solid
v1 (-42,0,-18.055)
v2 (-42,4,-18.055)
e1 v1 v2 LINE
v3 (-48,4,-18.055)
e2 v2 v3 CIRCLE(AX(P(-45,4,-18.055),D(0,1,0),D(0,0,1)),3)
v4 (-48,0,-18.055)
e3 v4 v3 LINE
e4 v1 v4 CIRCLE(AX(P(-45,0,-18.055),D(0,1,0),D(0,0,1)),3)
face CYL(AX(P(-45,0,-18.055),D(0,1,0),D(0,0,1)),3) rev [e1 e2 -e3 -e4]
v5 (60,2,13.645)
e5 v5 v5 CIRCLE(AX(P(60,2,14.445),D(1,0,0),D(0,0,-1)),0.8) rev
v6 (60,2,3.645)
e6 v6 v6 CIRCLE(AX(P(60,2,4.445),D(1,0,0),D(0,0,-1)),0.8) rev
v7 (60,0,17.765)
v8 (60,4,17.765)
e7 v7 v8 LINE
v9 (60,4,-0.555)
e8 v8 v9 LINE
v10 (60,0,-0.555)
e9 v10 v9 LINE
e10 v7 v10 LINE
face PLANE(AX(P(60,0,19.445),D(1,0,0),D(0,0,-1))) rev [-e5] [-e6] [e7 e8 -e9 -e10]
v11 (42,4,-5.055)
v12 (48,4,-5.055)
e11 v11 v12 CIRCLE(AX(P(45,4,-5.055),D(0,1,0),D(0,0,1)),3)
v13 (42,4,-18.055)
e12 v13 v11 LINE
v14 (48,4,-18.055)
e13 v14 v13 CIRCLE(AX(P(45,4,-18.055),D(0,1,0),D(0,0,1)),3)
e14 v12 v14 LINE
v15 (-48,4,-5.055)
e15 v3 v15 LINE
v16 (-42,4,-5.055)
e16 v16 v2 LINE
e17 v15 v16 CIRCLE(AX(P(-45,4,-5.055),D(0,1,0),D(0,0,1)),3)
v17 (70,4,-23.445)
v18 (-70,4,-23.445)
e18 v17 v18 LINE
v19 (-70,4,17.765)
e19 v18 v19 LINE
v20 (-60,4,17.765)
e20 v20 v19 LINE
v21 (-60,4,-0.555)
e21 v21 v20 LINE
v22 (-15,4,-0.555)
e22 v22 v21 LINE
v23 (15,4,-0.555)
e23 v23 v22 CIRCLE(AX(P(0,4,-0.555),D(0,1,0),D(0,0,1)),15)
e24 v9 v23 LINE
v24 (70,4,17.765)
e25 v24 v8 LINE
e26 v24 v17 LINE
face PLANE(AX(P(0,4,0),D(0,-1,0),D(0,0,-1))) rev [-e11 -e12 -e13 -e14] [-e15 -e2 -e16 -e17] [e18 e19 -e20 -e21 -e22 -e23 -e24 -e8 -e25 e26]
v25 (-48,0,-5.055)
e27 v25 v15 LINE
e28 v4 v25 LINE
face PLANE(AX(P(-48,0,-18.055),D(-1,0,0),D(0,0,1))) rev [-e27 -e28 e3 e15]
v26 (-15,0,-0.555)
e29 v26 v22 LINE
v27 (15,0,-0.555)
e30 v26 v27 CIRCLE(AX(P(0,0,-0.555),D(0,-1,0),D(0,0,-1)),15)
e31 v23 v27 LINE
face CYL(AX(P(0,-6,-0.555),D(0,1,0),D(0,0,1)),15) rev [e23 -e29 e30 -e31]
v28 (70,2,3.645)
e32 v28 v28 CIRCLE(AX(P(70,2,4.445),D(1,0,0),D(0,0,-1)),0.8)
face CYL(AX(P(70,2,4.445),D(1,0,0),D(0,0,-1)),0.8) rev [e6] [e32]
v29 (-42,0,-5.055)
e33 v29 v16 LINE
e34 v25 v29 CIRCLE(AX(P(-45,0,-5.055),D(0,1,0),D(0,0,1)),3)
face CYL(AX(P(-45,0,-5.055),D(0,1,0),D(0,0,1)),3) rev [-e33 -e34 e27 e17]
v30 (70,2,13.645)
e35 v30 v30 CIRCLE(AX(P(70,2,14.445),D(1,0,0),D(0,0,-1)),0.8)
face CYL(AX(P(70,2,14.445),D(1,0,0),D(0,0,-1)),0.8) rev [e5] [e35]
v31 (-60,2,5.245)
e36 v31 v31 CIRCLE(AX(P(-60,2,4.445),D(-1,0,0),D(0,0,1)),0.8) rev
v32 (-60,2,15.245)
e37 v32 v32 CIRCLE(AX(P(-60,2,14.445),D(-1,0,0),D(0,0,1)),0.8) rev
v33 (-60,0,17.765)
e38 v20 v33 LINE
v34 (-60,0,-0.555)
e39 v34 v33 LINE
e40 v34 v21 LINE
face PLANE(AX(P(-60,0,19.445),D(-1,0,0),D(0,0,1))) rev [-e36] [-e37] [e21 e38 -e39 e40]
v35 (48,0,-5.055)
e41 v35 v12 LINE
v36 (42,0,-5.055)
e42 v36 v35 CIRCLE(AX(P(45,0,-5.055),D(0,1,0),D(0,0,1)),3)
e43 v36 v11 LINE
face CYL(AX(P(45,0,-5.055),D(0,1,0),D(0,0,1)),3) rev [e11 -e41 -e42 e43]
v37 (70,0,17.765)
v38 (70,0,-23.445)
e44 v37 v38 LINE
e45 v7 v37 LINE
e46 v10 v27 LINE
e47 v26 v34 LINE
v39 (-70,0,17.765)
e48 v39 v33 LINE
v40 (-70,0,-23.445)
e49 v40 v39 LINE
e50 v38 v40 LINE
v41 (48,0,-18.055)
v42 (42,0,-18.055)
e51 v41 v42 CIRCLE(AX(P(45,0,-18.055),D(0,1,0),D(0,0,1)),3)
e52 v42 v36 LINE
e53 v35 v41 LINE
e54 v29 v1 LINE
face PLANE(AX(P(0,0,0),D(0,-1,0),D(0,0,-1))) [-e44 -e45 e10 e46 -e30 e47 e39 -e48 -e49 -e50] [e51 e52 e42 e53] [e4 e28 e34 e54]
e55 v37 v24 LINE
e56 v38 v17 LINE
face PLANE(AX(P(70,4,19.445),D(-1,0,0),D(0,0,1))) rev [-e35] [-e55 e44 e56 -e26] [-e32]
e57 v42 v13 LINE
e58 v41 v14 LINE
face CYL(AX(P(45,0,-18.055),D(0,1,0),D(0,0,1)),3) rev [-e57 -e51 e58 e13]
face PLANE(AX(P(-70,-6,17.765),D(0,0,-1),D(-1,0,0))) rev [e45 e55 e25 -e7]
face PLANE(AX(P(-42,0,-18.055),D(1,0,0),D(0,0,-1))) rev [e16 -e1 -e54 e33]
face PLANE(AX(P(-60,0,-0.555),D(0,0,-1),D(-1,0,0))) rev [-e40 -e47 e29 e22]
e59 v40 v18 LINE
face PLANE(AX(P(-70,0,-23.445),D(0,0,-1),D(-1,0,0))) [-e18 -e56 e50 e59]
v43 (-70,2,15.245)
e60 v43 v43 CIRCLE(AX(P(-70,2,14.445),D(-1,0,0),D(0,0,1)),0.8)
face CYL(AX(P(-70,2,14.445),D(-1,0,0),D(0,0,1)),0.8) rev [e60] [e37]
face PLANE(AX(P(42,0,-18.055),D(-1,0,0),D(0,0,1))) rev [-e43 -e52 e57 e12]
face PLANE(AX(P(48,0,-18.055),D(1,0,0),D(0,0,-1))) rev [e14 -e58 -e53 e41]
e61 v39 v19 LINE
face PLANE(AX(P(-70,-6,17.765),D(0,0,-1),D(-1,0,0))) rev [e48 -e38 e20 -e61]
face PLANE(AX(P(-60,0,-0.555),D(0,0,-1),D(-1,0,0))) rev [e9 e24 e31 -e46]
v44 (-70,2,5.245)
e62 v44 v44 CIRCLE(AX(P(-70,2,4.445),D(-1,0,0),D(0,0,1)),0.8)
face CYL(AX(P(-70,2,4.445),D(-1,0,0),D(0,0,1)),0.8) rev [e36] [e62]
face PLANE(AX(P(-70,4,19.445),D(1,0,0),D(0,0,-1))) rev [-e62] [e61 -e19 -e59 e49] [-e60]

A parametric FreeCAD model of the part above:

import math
import FreeCAD as App
import Part
import Sketcher
from FreeCAD import Vector
Q = App.Units.Quantity

doc = App.newDocument("Part")
body = doc.addObject("PartDesign::Body", "Body")

sketch1 = doc.addObject("Sketcher::SketchObject", "Sketch")
body.addObject(sketch1)
sketch1.AttachmentSupport = (doc.XZ_Plane, [""])
sketch1.MapMode = "FlatFace"
sketch1.addGeometry(Part.LineSegment(Vector(-70, -19.445, 0), Vector(-70, 19.445, 0)), False)
sketch1.addGeometry(Part.LineSegment(Vector(-70, 19.445, 0), Vector(70, 19.445, 0)), False)
sketch1.addGeometry(Part.LineSegment(Vector(70, 19.445, 0), Vector(70, -19.445, 0)), False)
sketch1.addGeometry(Part.LineSegment(Vector(70, -19.445, 0), Vector(-70, -19.445, 0)), False)
sketch1.addConstraint(Sketcher.Constraint("Coincident", 0, 2, 1, 1))
sketch1.addConstraint(Sketcher.Constraint("Coincident", 1, 2, 2, 1))
sketch1.addConstraint(Sketcher.Constraint("Coincident", 2, 2, 3, 1))
sketch1.addConstraint(Sketcher.Constraint("Coincident", 3, 2, 0, 1))
sketch1.addConstraint(Sketcher.Constraint("Vertical", 0))
sketch1.addConstraint(Sketcher.Constraint("Horizontal", 1))
sketch1.addConstraint(Sketcher.Constraint("Vertical", 2))
sketch1.addConstraint(Sketcher.Constraint("Horizontal", 3))
sketch1.addConstraint(Sketcher.Constraint("Symmetric", 0, 2, 2, 2, -1, 1))
sketch1.addConstraint(Sketcher.Constraint("DistanceX", 1, 1, 1, 2, 140.0))
sketch1.addConstraint(Sketcher.Constraint("DistanceY", 0, 1, 0, 2, 38.89))
pad1 = doc.addObject("PartDesign::Pad", "Pad")
body.addObject(pad1)
pad1.Profile = sketch1
pad1.Length = 4
pad1.Reversed = True

sketch2 = doc.addObject("Sketcher::SketchObject", "Sketch001")
body.addObject(sketch2)
sketch2.AttachmentSupport = (doc.XZ_Plane, [""])
sketch2.MapMode = "FlatFace"
sketch2.AttachmentOffset = App.Placement(Vector(0, 0, -2), App.Rotation())
sketch2.addGeometry(Part.LineSegment(Vector(-51.519312, 4.445, 0), Vector(-70, 4.445, 0)), False)
sketch2.addGeometry(Part.LineSegment(Vector(-70, 4.445, 0), Vector(-70, 5.245, 0)), False)
sketch2.addGeometry(Part.LineSegment(Vector(-70, 5.245, 0), Vector(-52, 5.245, 0)), False)
sketch2.addGeometry(Part.LineSegment(Vector(-52, 5.245, 0), Vector(-51.519312, 4.445, 0)), False)
sketch2.addGeometry(Part.LineSegment(Vector(-70, 4.445, 0), Vector(-51.519312, 4.445, 0)), True)
sketch2.addConstraint(Sketcher.Constraint("Coincident", 0, 2, 1, 1))
sketch2.addConstraint(Sketcher.Constraint("Coincident", 1, 2, 2, 1))
sketch2.addConstraint(Sketcher.Constraint("Coincident", 2, 2, 3, 1))
sketch2.addConstraint(Sketcher.Constraint("Coincident", 3, 2, 0, 1))
sketch2.addConstraint(Sketcher.Constraint("Horizontal", 0))
sketch2.addConstraint(Sketcher.Constraint("Vertical", 1))
sketch2.addConstraint(Sketcher.Constraint("Horizontal", 2))
sketch2.addConstraint(Sketcher.Constraint("Horizontal", 4))
sketch2.addConstraint(Sketcher.Constraint("Coincident", 4, 1, 0, 2))
sketch2.addConstraint(Sketcher.Constraint("Equal", 0, 4))
sketch2.addConstraint(Sketcher.Constraint("DistanceX", 2, 1, 2, 2, 18.0))
sketch2.addConstraint(Sketcher.Constraint("Angle", 3, Q("-59 deg")))
sketch2.addConstraint(Sketcher.Constraint("DistanceY", 1, 1, 1, 2, 0.8))
sketch2.addConstraint(Sketcher.Constraint("DistanceX", 0, 2, -1, 1, 70.0))
sketch2.addConstraint(Sketcher.Constraint("DistanceY", -1, 1, 0, 2, 4.445))
groove = doc.addObject("PartDesign::Groove", "Groove")
body.addObject(groove)
groove.Profile = sketch2
groove.ReferenceAxis = (sketch2, ["Axis0"])
groove.Angle = 360
doc.recompute()

linearpattern = doc.addObject("PartDesign::LinearPattern", "LinearPattern")
body.addObject(linearpattern)
linearpattern.Originals = [groove]
linearpattern.Direction = (doc.Z_Axis, [""])
linearpattern.Mode = "offset"
linearpattern.Offset = 10
linearpattern.Occurrences = 2
body.Tip = linearpattern
doc.recompute()

mirrored = doc.addObject("PartDesign::Mirrored", "Mirrored")
body.addObject(mirrored)
mirrored.Originals = [groove]
mirrored.MirrorPlane = (doc.YZ_Plane, [""])
body.Tip = mirrored

sketch3 = doc.addObject("Sketcher::SketchObject", "Sketch002")
body.addObject(sketch3)
sketch3.AttachmentSupport = (doc.XZ_Plane, [""])
sketch3.MapMode = "FlatFace"
sketch3.AttachmentOffset = App.Placement(Vector(0, 0, -2), App.Rotation())
sketch3.addGeometry(Part.LineSegment(Vector(70, 14.445, 0), Vector(51.519312, 14.445, 0)), False)
sketch3.addGeometry(Part.LineSegment(Vector(51.519312, 14.445, 0), Vector(52, 15.245, 0)), False)
sketch3.addGeometry(Part.LineSegment(Vector(52, 15.245, 0), Vector(70, 15.245, 0)), False)
sketch3.addGeometry(Part.LineSegment(Vector(70, 15.245, 0), Vector(70, 14.445, 0)), False)
sketch3.addGeometry(Part.LineSegment(Vector(51.519312, 14.445, 0), Vector(70, 14.445, 0)), True)
sketch3.addConstraint(Sketcher.Constraint("Coincident", 0, 2, 1, 1))
sketch3.addConstraint(Sketcher.Constraint("Coincident", 1, 2, 2, 1))
sketch3.addConstraint(Sketcher.Constraint("Coincident", 2, 2, 3, 1))
sketch3.addConstraint(Sketcher.Constraint("Coincident", 3, 2, 0, 1))
sketch3.addConstraint(Sketcher.Constraint("Horizontal", 0))
sketch3.addConstraint(Sketcher.Constraint("Horizontal", 2))
sketch3.addConstraint(Sketcher.Constraint("Vertical", 3))
sketch3.addConstraint(Sketcher.Constraint("Horizontal", 4))
sketch3.addConstraint(Sketcher.Constraint("Coincident", 4, 1, 0, 2))
sketch3.addConstraint(Sketcher.Constraint("Vertical", 2, 2, 4, 2))
sketch3.addConstraint(Sketcher.Constraint("DistanceX", 2, 1, 2, 2, 18.0))
sketch3.addConstraint(Sketcher.Constraint("Angle", 1, Q("59 deg")))
sketch3.addConstraint(Sketcher.Constraint("DistanceY", 3, 2, 3, 1, 0.8))
sketch3.addConstraint(Sketcher.Constraint("DistanceX", -1, 1, 1, 2, 52.0))
sketch3.addConstraint(Sketcher.Constraint("DistanceY", -1, 1, 0, 2, 14.445))
groove2 = doc.addObject("PartDesign::Groove", "Groove001")
body.addObject(groove2)
groove2.Profile = sketch3
groove2.ReferenceAxis = (sketch3, ["Axis0"])
groove2.Angle = 360

sketch4 = doc.addObject("Sketcher::SketchObject", "Sketch003")
body.addObject(sketch4)
sketch4.AttachmentSupport = (doc.XZ_Plane, [""])
sketch4.MapMode = "FlatFace"
sketch4.AttachmentOffset = App.Placement(Vector(0, 0, -4), App.Rotation())
sketch4.addGeometry(Part.LineSegment(Vector(-60, -0.555, 0), Vector(-60, 19.445, 0)), False)
sketch4.addGeometry(Part.LineSegment(Vector(-60, 19.445, 0), Vector(60, 19.445, 0)), False)
sketch4.addGeometry(Part.LineSegment(Vector(60, 19.445, 0), Vector(60, -0.555, 0)), False)
sketch4.addGeometry(Part.LineSegment(Vector(60, -0.555, 0), Vector(-60, -0.555, 0)), False)
sketch4.addConstraint(Sketcher.Constraint("Coincident", 0, 2, 1, 1))
sketch4.addConstraint(Sketcher.Constraint("Coincident", 1, 2, 2, 1))
sketch4.addConstraint(Sketcher.Constraint("Coincident", 2, 2, 3, 1))
sketch4.addConstraint(Sketcher.Constraint("Coincident", 3, 2, 0, 1))
sketch4.addConstraint(Sketcher.Constraint("Vertical", 0))
sketch4.addConstraint(Sketcher.Constraint("Horizontal", 1))
sketch4.addConstraint(Sketcher.Constraint("Vertical", 2))
sketch4.addConstraint(Sketcher.Constraint("Horizontal", 3))
sketch4.addConstraint(Sketcher.Constraint("DistanceX", 1, 1, 1, 2, 120.0))
sketch4.addConstraint(Sketcher.Constraint("DistanceY", 0, 1, 0, 2, 20.0))
sketch4.addConstraint(Sketcher.Constraint("DistanceX", 0, 2, -1, 1, 60.0))
sketch4.addConstraint(Sketcher.Constraint("DistanceY", -1, 1, 0, 2, 19.445))
pocket1 = doc.addObject("PartDesign::Pocket", "Pocket")
body.addObject(pocket1)
pocket1.Profile = sketch4
pocket1.Type = "ThroughAll"
pocket1.Reversed = True

sketch5 = doc.addObject("Sketcher::SketchObject", "Sketch004")
body.addObject(sketch5)
sketch5.AttachmentSupport = (doc.XZ_Plane, [""])
sketch5.MapMode = "FlatFace"
sketch5.AttachmentOffset = App.Placement(Vector(0, 0, -4), App.Rotation())
sketch5.addGeometry(Part.LineSegment(Vector(-70, 19.445, 0), Vector(-70, 21.735, 0)), False)
sketch5.addGeometry(Part.LineSegment(Vector(-70, 21.735, 0), Vector(-35, 21.735, 0)), False)
sketch5.addGeometry(Part.LineSegment(Vector(-35, 21.735, 0), Vector(-35, 19.445, 0)), False)
sketch5.addGeometry(Part.LineSegment(Vector(-35, 19.445, 0), Vector(-70, 19.445, 0)), False)
sketch5.addGeometry(Part.LineSegment(Vector(60, 19.445, 0), Vector(60, 21.735, 0)), False)
sketch5.addGeometry(Part.LineSegment(Vector(60, 21.735, 0), Vector(70, 21.735, 0)), False)
sketch5.addGeometry(Part.LineSegment(Vector(70, 21.735, 0), Vector(70, 19.445, 0)), False)
sketch5.addGeometry(Part.LineSegment(Vector(70, 19.445, 0), Vector(60, 19.445, 0)), False)
sketch5.addConstraint(Sketcher.Constraint("Coincident", 0, 2, 1, 1))
sketch5.addConstraint(Sketcher.Constraint("Coincident", 1, 2, 2, 1))
sketch5.addConstraint(Sketcher.Constraint("Coincident", 2, 2, 3, 1))
sketch5.addConstraint(Sketcher.Constraint("Coincident", 3, 2, 0, 1))
sketch5.addConstraint(Sketcher.Constraint("Coincident", 4, 2, 5, 1))
sketch5.addConstraint(Sketcher.Constraint("Coincident", 5, 2, 6, 1))
sketch5.addConstraint(Sketcher.Constraint("Coincident", 6, 2, 7, 1))
sketch5.addConstraint(Sketcher.Constraint("Coincident", 7, 2, 4, 1))
sketch5.addConstraint(Sketcher.Constraint("Vertical", 0))
sketch5.addConstraint(Sketcher.Constraint("Horizontal", 1))
sketch5.addConstraint(Sketcher.Constraint("Vertical", 2))
sketch5.addConstraint(Sketcher.Constraint("Horizontal", 3))
sketch5.addConstraint(Sketcher.Constraint("Vertical", 4))
sketch5.addConstraint(Sketcher.Constraint("Horizontal", 5))
sketch5.addConstraint(Sketcher.Constraint("Vertical", 6))
sketch5.addConstraint(Sketcher.Constraint("Horizontal", 7))
sketch5.addConstraint(Sketcher.Constraint("Symmetric", 0, 2, 5, 2, -2))
sketch5.addConstraint(Sketcher.Constraint("Horizontal", 3, 2, 6, 2))
sketch5.addConstraint(Sketcher.Constraint("DistanceX", 1, 1, 1, 2, 35.0))
sketch5.addConstraint(Sketcher.Constraint("DistanceX", 5, 1, 5, 2, 10.0))
sketch5.addConstraint(Sketcher.Constraint("DistanceX", 0, 2, -1, 1, 70.0))
sketch5.addConstraint(Sketcher.Constraint("DistanceY", 0, 1, 0, 2, 2.29))
sketch5.addConstraint(Sketcher.Constraint("DistanceY", -1, 1, 0, 2, 21.735))
pad2 = doc.addObject("PartDesign::Pad", "Pad001")
body.addObject(pad2)
pad2.Profile = sketch5
pad2.Length = 4

sketch6 = doc.addObject("Sketcher::SketchObject", "Sketch005")
body.addObject(sketch6)
sketch6.AttachmentSupport = (doc.XZ_Plane, [""])
sketch6.MapMode = "FlatFace"
sketch6.AttachmentOffset = App.Placement(Vector(0, 0, -4), App.Rotation())
sketch6.addGeometry(Part.LineSegment(Vector(-60, 19.445, 0), Vector(-60, 21.735, 0)), False)
sketch6.addGeometry(Part.LineSegment(Vector(-60, 21.735, 0), Vector(-35, 21.735, 0)), False)
sketch6.addGeometry(Part.LineSegment(Vector(-35, 21.735, 0), Vector(-35, 19.445, 0)), False)
sketch6.addGeometry(Part.LineSegment(Vector(-35, 19.445, 0), Vector(-60, 19.445, 0)), False)
sketch6.addConstraint(Sketcher.Constraint("Coincident", 0, 2, 1, 1))
sketch6.addConstraint(Sketcher.Constraint("Coincident", 1, 2, 2, 1))
sketch6.addConstraint(Sketcher.Constraint("Coincident", 2, 2, 3, 1))
sketch6.addConstraint(Sketcher.Constraint("Coincident", 3, 2, 0, 1))
sketch6.addConstraint(Sketcher.Constraint("Vertical", 0))
sketch6.addConstraint(Sketcher.Constraint("Horizontal", 1))
sketch6.addConstraint(Sketcher.Constraint("Vertical", 2))
sketch6.addConstraint(Sketcher.Constraint("Horizontal", 3))
sketch6.addConstraint(Sketcher.Constraint("DistanceX", 1, 1, 1, 2, 25.0))
sketch6.addConstraint(Sketcher.Constraint("DistanceX", 0, 2, -1, 1, 60.0))
sketch6.addConstraint(Sketcher.Constraint("DistanceY", 0, 1, 0, 2, 2.29))
sketch6.addConstraint(Sketcher.Constraint("DistanceY", -1, 1, 0, 2, 21.735))
pocket2 = doc.addObject("PartDesign::Pocket", "Pocket001")
body.addObject(pocket2)
pocket2.Profile = sketch6
pocket2.Type = "ThroughAll"
pocket2.Reversed = True

sketch7 = doc.addObject("Sketcher::SketchObject", "Sketch006")
body.addObject(sketch7)
sketch7.AttachmentSupport = (doc.XZ_Plane, [""])
sketch7.MapMode = "FlatFace"
sketch7.AttachmentOffset = App.Placement(Vector(0, 0, -4), App.Rotation())
sketch7.addGeometry(Part.LineSegment(Vector(-70, -23.445, 0), Vector(-70, -19.445, 0)), False)
sketch7.addGeometry(Part.LineSegment(Vector(-70, -19.445, 0), Vector(70, -19.445, 0)), False)
sketch7.addGeometry(Part.LineSegment(Vector(70, -19.445, 0), Vector(70, -23.445, 0)), False)
sketch7.addGeometry(Part.LineSegment(Vector(70, -23.445, 0), Vector(-70, -23.445, 0)), False)
sketch7.addConstraint(Sketcher.Constraint("Coincident", 0, 2, 1, 1))
sketch7.addConstraint(Sketcher.Constraint("Coincident", 1, 2, 2, 1))
sketch7.addConstraint(Sketcher.Constraint("Coincident", 2, 2, 3, 1))
sketch7.addConstraint(Sketcher.Constraint("Coincident", 3, 2, 0, 1))
sketch7.addConstraint(Sketcher.Constraint("Vertical", 0))
sketch7.addConstraint(Sketcher.Constraint("Horizontal", 1))
sketch7.addConstraint(Sketcher.Constraint("Vertical", 2))
sketch7.addConstraint(Sketcher.Constraint("Horizontal", 3))
sketch7.addConstraint(Sketcher.Constraint("DistanceX", 1, 1, 1, 2, 140.0))
sketch7.addConstraint(Sketcher.Constraint("DistanceY", 0, 1, 0, 2, 4.0))
sketch7.addConstraint(Sketcher.Constraint("DistanceX", 0, 2, -1, 1, 70.0))
sketch7.addConstraint(Sketcher.Constraint("DistanceY", 0, 2, -1, 1, 19.445))
pad3 = doc.addObject("PartDesign::Pad", "Pad002")
body.addObject(pad3)
pad3.Profile = sketch7
pad3.Length = 4

sketch8 = doc.addObject("Sketcher::SketchObject", "Sketch007")
body.addObject(sketch8)
sketch8.AttachmentSupport = (doc.XZ_Plane, [""])
sketch8.MapMode = "FlatFace"
sketch8.AttachmentOffset = App.Placement(Vector(0, 0, -4), App.Rotation())
sketch8.addGeometry(Part.LineSegment(Vector(-70, 17.765, 0), Vector(-70, 21.735, 0)), False)
sketch8.addGeometry(Part.LineSegment(Vector(-70, 21.735, 0), Vector(70, 21.735, 0)), False)
sketch8.addGeometry(Part.LineSegment(Vector(70, 21.735, 0), Vector(70, 17.765, 0)), False)
sketch8.addGeometry(Part.LineSegment(Vector(70, 17.765, 0), Vector(-70, 17.765, 0)), False)
sketch8.addConstraint(Sketcher.Constraint("Coincident", 0, 2, 1, 1))
sketch8.addConstraint(Sketcher.Constraint("Coincident", 1, 2, 2, 1))
sketch8.addConstraint(Sketcher.Constraint("Coincident", 2, 2, 3, 1))
sketch8.addConstraint(Sketcher.Constraint("Coincident", 3, 2, 0, 1))
sketch8.addConstraint(Sketcher.Constraint("Vertical", 0))
sketch8.addConstraint(Sketcher.Constraint("Horizontal", 1))
sketch8.addConstraint(Sketcher.Constraint("Vertical", 2))
sketch8.addConstraint(Sketcher.Constraint("Horizontal", 3))
sketch8.addConstraint(Sketcher.Constraint("DistanceX", 1, 1, 1, 2, 140.0))
sketch8.addConstraint(Sketcher.Constraint("DistanceX", 0, 2, -1, 1, 70.0))
sketch8.addConstraint(Sketcher.Constraint("DistanceY", 0, 1, 0, 2, 3.97))
sketch8.addConstraint(Sketcher.Constraint("DistanceY", -1, 1, 0, 2, 21.735))
pocket3 = doc.addObject("PartDesign::Pocket", "Pocket002")
body.addObject(pocket3)
pocket3.Profile = sketch8
pocket3.Length = 10
pocket3.Reversed = True

sketch9 = doc.addObject("Sketcher::SketchObject", "Sketch008")
body.addObject(sketch9)
sketch9.AttachmentSupport = (doc.XZ_Plane, [""])
sketch9.MapMode = "FlatFace"
sketch9.AttachmentOffset = App.Placement(Vector(0, 0, -4), App.Rotation())
sketch9.addGeometry(Part.LineSegment(Vector(-42, -5.055, 0), Vector(-42, -18.055, 0)), False)
sketch9.addGeometry(Part.ArcOfCircle(Part.Circle(Vector(-45, -18.055, 0), Vector(0, 0, 1), 3), math.radians(180), math.radians(360)), False)
sketch9.addGeometry(Part.LineSegment(Vector(-48, -18.055, 0), Vector(-48, -5.055, 0)), False)
sketch9.addGeometry(Part.ArcOfCircle(Part.Circle(Vector(-45, -5.055, 0), Vector(0, 0, 1), 3), math.radians(0), math.radians(180)), False)
sketch9.addGeometry(Part.LineSegment(Vector(48, -5.055, 0), Vector(48, -18.055, 0)), False)
sketch9.addGeometry(Part.ArcOfCircle(Part.Circle(Vector(45, -18.055, 0), Vector(0, 0, 1), 3), math.radians(180), math.radians(360)), False)
sketch9.addGeometry(Part.LineSegment(Vector(42, -18.055, 0), Vector(42, -5.055, 0)), False)
sketch9.addGeometry(Part.ArcOfCircle(Part.Circle(Vector(45, -5.055, 0), Vector(0, 0, 1), 3), math.radians(0), math.radians(180)), False)
sketch9.addConstraint(Sketcher.Constraint("Tangent", 0, 2, 1, 2))
sketch9.addConstraint(Sketcher.Constraint("Tangent", 1, 1, 2, 1))
sketch9.addConstraint(Sketcher.Constraint("Tangent", 2, 2, 3, 2))
sketch9.addConstraint(Sketcher.Constraint("Tangent", 3, 1, 0, 1))
sketch9.addConstraint(Sketcher.Constraint("Tangent", 4, 2, 5, 2))
sketch9.addConstraint(Sketcher.Constraint("Tangent", 5, 1, 6, 1))
sketch9.addConstraint(Sketcher.Constraint("Tangent", 6, 2, 7, 2))
sketch9.addConstraint(Sketcher.Constraint("Tangent", 7, 1, 4, 1))
sketch9.addConstraint(Sketcher.Constraint("Vertical", 0))
sketch9.addConstraint(Sketcher.Constraint("Vertical", 2))
sketch9.addConstraint(Sketcher.Constraint("Vertical", 4))
sketch9.addConstraint(Sketcher.Constraint("Vertical", 6))
sketch9.addConstraint(Sketcher.Constraint("Equal", 3, 5))
sketch9.addConstraint(Sketcher.Constraint("Symmetric", 1, 3, 5, 3, -2))
sketch9.addConstraint(Sketcher.Constraint("Horizontal", 3, 3, 7, 3))
sketch9.addConstraint(Sketcher.Constraint("Radius", 1, 3.0))
sketch9.addConstraint(Sketcher.Constraint("DistanceY", 0, 2, 0, 1, 13.0))
sketch9.addConstraint(Sketcher.Constraint("DistanceX", 1, 3, -1, 1, 45.0))
sketch9.addConstraint(Sketcher.Constraint("DistanceY", 1, 3, -1, 1, 18.055))
pocket4 = doc.addObject("PartDesign::Pocket", "Pocket003")
body.addObject(pocket4)
pocket4.Profile = sketch9
pocket4.Type = "ThroughAll"
pocket4.Reversed = True

sketch10 = doc.addObject("Sketcher::SketchObject", "Sketch009")
body.addObject(sketch10)
sketch10.AttachmentSupport = (doc.XZ_Plane, [""])
sketch10.MapMode = "FlatFace"
sketch10.AttachmentOffset = App.Placement(Vector(0, 0, -4), App.Rotation())
sketch10.addGeometry(Part.LineSegment(Vector(-15, -0.555, 0), Vector(15, -0.555, 0)), False)
sketch10.addGeometry(Part.ArcOfCircle(Part.Circle(Vector(0, -0.555, 0), Vector(0, 0, 1), 15), math.radians(180), math.radians(360)), False)
sketch10.addConstraint(Sketcher.Constraint("Coincident", 0, 1, 1, 1))
sketch10.addConstraint(Sketcher.Constraint("Coincident", 1, 2, 0, 2))
sketch10.addConstraint(Sketcher.Constraint("Horizontal", 0))
sketch10.addConstraint(Sketcher.Constraint("PointOnObject", 1, 3, -2))
sketch10.addConstraint(Sketcher.Constraint("Horizontal", 1, 3, 0, 1))
sketch10.addConstraint(Sketcher.Constraint("Radius", 1, 15.0))
sketch10.addConstraint(Sketcher.Constraint("DistanceY", 1, 3, -1, 1, 0.555))
pocket5 = doc.addObject("PartDesign::Pocket", "Pocket004")
body.addObject(pocket5)
pocket5.Profile = sketch10
pocket5.Length = 10
pocket5.Reversed = True

doc.recompute()
